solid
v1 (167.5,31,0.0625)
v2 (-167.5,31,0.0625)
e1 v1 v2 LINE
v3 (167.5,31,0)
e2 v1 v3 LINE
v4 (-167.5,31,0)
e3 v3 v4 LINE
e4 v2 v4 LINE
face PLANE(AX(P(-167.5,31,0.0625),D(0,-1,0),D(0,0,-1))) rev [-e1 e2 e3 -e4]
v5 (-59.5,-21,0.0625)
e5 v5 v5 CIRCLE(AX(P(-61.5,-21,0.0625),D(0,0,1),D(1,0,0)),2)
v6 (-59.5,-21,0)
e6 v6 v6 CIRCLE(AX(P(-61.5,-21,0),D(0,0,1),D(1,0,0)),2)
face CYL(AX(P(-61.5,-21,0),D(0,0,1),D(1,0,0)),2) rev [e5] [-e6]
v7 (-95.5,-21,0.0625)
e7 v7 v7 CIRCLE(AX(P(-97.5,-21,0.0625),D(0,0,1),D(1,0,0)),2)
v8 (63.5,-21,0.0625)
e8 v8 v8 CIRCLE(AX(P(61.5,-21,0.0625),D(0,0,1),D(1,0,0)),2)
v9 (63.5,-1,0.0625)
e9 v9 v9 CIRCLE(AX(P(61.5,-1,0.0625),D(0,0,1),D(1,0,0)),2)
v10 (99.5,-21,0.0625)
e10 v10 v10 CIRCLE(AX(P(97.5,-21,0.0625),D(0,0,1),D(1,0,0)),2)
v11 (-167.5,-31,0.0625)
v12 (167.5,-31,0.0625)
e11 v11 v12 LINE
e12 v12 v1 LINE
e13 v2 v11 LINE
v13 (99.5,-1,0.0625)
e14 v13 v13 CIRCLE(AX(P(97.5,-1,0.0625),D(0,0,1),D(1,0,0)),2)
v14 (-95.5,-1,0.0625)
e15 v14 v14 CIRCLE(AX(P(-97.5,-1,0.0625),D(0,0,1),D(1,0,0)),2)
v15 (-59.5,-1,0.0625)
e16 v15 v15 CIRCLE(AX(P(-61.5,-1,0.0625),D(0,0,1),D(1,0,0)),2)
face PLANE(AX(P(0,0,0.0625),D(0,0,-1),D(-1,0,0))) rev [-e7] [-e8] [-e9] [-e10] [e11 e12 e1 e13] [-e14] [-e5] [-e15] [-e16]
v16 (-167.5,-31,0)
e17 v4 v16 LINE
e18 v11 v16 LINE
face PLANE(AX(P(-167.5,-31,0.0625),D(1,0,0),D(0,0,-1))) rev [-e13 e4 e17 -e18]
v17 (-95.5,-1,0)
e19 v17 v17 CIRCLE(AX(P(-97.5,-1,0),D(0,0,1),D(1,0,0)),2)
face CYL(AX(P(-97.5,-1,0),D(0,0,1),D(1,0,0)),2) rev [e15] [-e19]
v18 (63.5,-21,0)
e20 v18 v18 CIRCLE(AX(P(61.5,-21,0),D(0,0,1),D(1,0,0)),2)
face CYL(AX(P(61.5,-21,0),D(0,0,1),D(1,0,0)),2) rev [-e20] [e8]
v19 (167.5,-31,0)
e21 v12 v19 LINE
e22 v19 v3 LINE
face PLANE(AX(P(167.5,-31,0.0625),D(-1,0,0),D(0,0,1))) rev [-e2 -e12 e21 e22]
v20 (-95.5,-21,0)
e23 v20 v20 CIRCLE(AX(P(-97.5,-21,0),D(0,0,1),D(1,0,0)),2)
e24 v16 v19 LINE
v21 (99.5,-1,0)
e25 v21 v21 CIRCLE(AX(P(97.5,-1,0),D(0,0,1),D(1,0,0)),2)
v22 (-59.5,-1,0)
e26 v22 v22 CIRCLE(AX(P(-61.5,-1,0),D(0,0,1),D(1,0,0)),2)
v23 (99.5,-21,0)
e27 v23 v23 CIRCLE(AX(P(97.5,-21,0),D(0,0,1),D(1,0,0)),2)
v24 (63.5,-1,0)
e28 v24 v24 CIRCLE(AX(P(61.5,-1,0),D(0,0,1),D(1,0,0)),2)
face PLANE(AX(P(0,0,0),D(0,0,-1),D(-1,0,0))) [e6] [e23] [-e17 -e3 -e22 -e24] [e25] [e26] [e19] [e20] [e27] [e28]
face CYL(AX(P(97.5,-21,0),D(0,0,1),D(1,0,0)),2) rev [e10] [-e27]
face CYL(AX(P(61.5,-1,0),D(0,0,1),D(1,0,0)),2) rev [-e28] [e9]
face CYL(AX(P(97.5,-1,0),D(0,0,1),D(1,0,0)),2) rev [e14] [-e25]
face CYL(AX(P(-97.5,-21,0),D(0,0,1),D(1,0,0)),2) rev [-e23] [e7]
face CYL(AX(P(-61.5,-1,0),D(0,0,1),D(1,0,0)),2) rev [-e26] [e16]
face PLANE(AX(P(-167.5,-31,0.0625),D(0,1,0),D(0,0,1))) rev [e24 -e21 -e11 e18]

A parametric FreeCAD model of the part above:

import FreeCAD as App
import Part
import Sketcher
Q = App.Units.Quantity

doc = App.newDocument("Part")
body = doc.addObject("PartDesign::Body", "Body")

# Sketch on XY plane
sketch1 = body.newObject("Sketcher::SketchObject", "Sketch")
sketch1.AttachmentSupport = (doc.getObject("XY_Plane"), [""])
sketch1.MapMode = "FlatFace"
sketch1.addGeometry([
    Part.LineSegment(App.Vector(-168, 31, 0), App.Vector(-168, -31, 0)),
    Part.LineSegment(App.Vector(-168, -31, 0), App.Vector(168, -31, 0)),
    Part.LineSegment(App.Vector(168, -31, 0), App.Vector(168, 31, 0)),
    Part.LineSegment(App.Vector(168, 31, 0), App.Vector(-168, 31, 0)),
], False)
sketch1.addConstraint([
    Sketcher.Constraint("Coincident", 0, 2, 1, 1),
    Sketcher.Constraint("Coincident", 1, 2, 2, 1),
    Sketcher.Constraint("Coincident", 2, 2, 3, 1),
    Sketcher.Constraint("Coincident", 3, 2, 0, 1),
    Sketcher.Constraint("Vertical", 0),
    Sketcher.Constraint("Horizontal", 1),
    Sketcher.Constraint("Vertical", 2),
    Sketcher.Constraint("Horizontal", 3),
    Sketcher.Constraint("Symmetric", 0, 2, 2, 2, -1, 1),
    Sketcher.Constraint("DistanceX", 1, 1, 1, 2, Q("335 mm")),
    Sketcher.Constraint("DistanceY", 0, 2, 0, 1, Q("62 mm")),
])
pad1 = body.newObject("PartDesign::Pad", "Pad")
pad1.Profile = sketch1
pad1.Length = 0.0625

# Sketch on XY plane
sketch2 = body.newObject("Sketcher::SketchObject", "Sketch001")
sketch2.AttachmentSupport = (doc.getObject("XY_Plane"), [""])
sketch2.MapMode = "FlatFace"
sketch2.AttachmentOffset = App.Placement(App.Vector(0, 0, 0.0625), App.Rotation())
sketch2.addGeometry([
    Part.Circle(App.Vector(-61.5, -1, 0), App.Vector(0, 0, 1), 2),
    Part.Circle(App.Vector(-61.5, -21, 0), App.Vector(0, 0, 1), 2),
    Part.Circle(App.Vector(61.5, -1, 0), App.Vector(0, 0, 1), 2),
    Part.Circle(App.Vector(61.5, -21, 0), App.Vector(0, 0, 1), 2),
], False)
sketch2.addConstraint([
    Sketcher.Constraint("Equal", 0, 1),
    Sketcher.Constraint("Equal", 1, 2),
    Sketcher.Constraint("Equal", 2, 3),
    Sketcher.Constraint("Symmetric", 0, 3, 2, 3, -2),
    Sketcher.Constraint("Symmetric", 1, 3, 3, 3, -2),
    Sketcher.Constraint("Vertical", 0, 3, 1, 3),
    Sketcher.Constraint("Diameter", 0, Q("4 mm")),
    Sketcher.Constraint("DistanceY", 0, 3, -1, 1, Q("1 mm")),
    Sketcher.Constraint("DistanceY", 1, 3, -1, 1, Q("21 mm")),
    Sketcher.Constraint("DistanceX", 0, 3, 2, 3, Q("123 mm")),
])
pocket1 = body.newObject("PartDesign::Pocket", "Pocket")
pocket1.Profile = sketch2
pocket1.Length = 0.0625

# Sketch on XY plane
sketch3 = body.newObject("Sketcher::SketchObject", "Sketch002")
sketch3.AttachmentSupport = (doc.getObject("XY_Plane"), [""])
sketch3.MapMode = "FlatFace"
sketch3.AttachmentOffset = App.Placement(App.Vector(0, 0, 0.0625), App.Rotation())
sketch3.addGeometry([
    Part.Circle(App.Vector(-97.5, -1, 0), App.Vector(0, 0, 1), 2),
    Part.Circle(App.Vector(-97.5, -21, 0), App.Vector(0, 0, 1), 2),
    Part.Circle(App.Vector(97.5, -1, 0), App.Vector(0, 0, 1), 2),
    Part.Circle(App.Vector(97.5, -21, 0), App.Vector(0, 0, 1), 2),
], False)
sketch3.addConstraint([
    Sketcher.Constraint("Equal", 0, 1),
    Sketcher.Constraint("Equal", 1, 2),
    Sketcher.Constraint("Equal", 2, 3),
    Sketcher.Constraint("Symmetric", 0, 3, 2, 3, -2),
    Sketcher.Constraint("Symmetric", 1, 3, 3, 3, -2),
    Sketcher.Constraint("Vertical", 0, 3, 1, 3),
    Sketcher.Constraint("Diameter", 0, Q("4 mm")),
    Sketcher.Constraint("DistanceY", 0, 3, -1, 1, Q("1 mm")),
    Sketcher.Constraint("DistanceY", 1, 3, -1, 1, Q("21 mm")),
    Sketcher.Constraint("DistanceX", 0, 3, 2, 3, Q("195 mm")),
])
pocket2 = body.newObject("PartDesign::Pocket", "Pocket001")
pocket2.Profile = sketch3
pocket2.Length = 0.0625

doc.recompute()
